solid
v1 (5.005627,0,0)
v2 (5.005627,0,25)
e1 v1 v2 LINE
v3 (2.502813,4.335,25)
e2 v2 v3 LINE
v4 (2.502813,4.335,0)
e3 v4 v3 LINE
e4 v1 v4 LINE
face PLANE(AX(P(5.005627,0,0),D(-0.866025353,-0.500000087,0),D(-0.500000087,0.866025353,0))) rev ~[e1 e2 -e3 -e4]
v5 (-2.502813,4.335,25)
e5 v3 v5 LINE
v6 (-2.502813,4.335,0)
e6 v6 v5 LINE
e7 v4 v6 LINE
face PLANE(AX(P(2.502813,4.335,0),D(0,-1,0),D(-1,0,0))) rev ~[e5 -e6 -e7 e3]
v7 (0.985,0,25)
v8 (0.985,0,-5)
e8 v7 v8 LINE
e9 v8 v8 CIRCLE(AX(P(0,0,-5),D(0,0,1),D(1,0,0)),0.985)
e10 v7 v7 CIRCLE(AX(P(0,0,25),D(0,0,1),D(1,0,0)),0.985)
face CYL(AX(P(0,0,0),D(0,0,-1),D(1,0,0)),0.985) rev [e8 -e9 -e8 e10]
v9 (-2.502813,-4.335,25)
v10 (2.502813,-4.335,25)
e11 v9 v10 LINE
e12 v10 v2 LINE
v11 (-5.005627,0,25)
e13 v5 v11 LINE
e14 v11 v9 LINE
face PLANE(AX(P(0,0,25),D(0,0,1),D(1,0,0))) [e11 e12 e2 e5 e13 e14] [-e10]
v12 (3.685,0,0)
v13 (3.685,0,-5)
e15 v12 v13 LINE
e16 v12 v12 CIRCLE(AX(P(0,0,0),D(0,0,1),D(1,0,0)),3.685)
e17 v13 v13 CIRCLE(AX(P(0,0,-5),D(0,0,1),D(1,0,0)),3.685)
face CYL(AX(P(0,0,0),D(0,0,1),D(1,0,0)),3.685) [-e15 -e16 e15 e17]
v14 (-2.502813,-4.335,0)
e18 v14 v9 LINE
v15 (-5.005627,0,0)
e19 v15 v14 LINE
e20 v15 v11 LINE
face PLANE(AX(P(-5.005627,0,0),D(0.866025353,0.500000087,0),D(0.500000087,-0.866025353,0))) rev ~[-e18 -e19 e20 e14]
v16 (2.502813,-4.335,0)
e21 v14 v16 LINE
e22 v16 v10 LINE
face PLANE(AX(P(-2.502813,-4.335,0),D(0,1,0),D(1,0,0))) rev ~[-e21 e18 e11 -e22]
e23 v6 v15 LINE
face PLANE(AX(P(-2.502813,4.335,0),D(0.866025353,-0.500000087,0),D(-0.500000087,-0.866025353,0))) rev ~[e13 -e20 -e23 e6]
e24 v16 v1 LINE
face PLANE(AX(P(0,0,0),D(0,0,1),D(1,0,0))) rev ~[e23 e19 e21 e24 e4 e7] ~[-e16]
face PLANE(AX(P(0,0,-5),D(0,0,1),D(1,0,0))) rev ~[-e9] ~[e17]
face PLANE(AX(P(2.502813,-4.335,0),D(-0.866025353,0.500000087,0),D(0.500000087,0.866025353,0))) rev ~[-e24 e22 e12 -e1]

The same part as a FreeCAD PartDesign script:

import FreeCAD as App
import Part
import Sketcher

V = App.Vector
Q = App.Units.Quantity


def add_polygon(sketch, points):
    """Adds a closed chain of lines whose ends are joined by coincident constraints."""
    first, n = sketch.GeometryCount, len(points)
    for a, b in zip(points, points[1:] + points[:1]):
        sketch.addGeometry(Part.LineSegment(App.Vector(*a, 0), App.Vector(*b, 0)), False)
    for i in range(n):
        sketch.addConstraint(Sketcher.Constraint("Coincident", first + i, 2, first + (i + 1) % n, 1))

doc = App.newDocument("Part")
body = doc.addObject("PartDesign::Body", "Body")

sketch1 = body.newObject("Sketcher::SketchObject", "Sketch")
sketch1.AttachmentSupport = (doc.getObject("XY_Plane"), [""])
sketch1.MapMode = "FlatFace"
sketch1.addGeometry([
    Part.Circle(V(0, 0, 0), V(0, 0, 1), 3.7),
    Part.Circle(V(0, 0, 0), V(0, 0, 1), 1),
], False)
sketch1.addConstraint([
    Sketcher.Constraint("Coincident", 0, 3, -1, 1),
    Sketcher.Constraint("Coincident", 1, 3, -1, 1),
    Sketcher.Constraint("Diameter", 0, Q("7.37 mm")),
    Sketcher.Constraint("Diameter", 1, Q("1.97 mm")),
])
pad1 = body.newObject("PartDesign::Pad", "Pad")
pad1.Profile = sketch1
pad1.Length = 5
pad1.Reversed = True

sketch2 = body.newObject("Sketcher::SketchObject", "Sketch001")
sketch2.AttachmentSupport = (doc.getObject("XY_Plane"), [""])
sketch2.MapMode = "FlatFace"
add_polygon(sketch2, [(2.5, -4.3), (5, 0), (2.5, 4.3), (-2.5, 4.3), (-5, 0), (-2.5, -4.3)])
sketch2.addGeometry(Part.Circle(V(0, 0, 0), V(0, 0, 1), 1), False)
sketch2.addConstraint([
    Sketcher.Constraint("Horizontal", 2),
    Sketcher.Constraint("Horizontal", 5),
    Sketcher.Constraint("Coincident", 6, 3, -1, 1),
    Sketcher.Constraint("Symmetric", 0, 2, 3, 2, -1, 1),
    Sketcher.Constraint("Symmetric", 1, 2, 4, 2, -1, 1),
    Sketcher.Constraint("PointOnObject", 0, 2, -1),
    Sketcher.Constraint("Parallel", 0, 3),
    Sketcher.Constraint("Vertical", 2, 2, 4, 2),
    Sketcher.Constraint("Diameter", 6, Q("1.97 mm")),
    Sketcher.Constraint("Angle", 0, Q("59.999994 deg")),
    Sketcher.Constraint("DistanceY", 4, 2, 2, 2, Q("8.67 mm")),
    Sketcher.Constraint("DistanceX", 2, 2, 2, 1, Q("5.005626 mm")),
])
pad2 = body.newObject("PartDesign::Pad", "Pad001")
pad2.Profile = sketch2
pad2.Length = 25

doc.recompute()
